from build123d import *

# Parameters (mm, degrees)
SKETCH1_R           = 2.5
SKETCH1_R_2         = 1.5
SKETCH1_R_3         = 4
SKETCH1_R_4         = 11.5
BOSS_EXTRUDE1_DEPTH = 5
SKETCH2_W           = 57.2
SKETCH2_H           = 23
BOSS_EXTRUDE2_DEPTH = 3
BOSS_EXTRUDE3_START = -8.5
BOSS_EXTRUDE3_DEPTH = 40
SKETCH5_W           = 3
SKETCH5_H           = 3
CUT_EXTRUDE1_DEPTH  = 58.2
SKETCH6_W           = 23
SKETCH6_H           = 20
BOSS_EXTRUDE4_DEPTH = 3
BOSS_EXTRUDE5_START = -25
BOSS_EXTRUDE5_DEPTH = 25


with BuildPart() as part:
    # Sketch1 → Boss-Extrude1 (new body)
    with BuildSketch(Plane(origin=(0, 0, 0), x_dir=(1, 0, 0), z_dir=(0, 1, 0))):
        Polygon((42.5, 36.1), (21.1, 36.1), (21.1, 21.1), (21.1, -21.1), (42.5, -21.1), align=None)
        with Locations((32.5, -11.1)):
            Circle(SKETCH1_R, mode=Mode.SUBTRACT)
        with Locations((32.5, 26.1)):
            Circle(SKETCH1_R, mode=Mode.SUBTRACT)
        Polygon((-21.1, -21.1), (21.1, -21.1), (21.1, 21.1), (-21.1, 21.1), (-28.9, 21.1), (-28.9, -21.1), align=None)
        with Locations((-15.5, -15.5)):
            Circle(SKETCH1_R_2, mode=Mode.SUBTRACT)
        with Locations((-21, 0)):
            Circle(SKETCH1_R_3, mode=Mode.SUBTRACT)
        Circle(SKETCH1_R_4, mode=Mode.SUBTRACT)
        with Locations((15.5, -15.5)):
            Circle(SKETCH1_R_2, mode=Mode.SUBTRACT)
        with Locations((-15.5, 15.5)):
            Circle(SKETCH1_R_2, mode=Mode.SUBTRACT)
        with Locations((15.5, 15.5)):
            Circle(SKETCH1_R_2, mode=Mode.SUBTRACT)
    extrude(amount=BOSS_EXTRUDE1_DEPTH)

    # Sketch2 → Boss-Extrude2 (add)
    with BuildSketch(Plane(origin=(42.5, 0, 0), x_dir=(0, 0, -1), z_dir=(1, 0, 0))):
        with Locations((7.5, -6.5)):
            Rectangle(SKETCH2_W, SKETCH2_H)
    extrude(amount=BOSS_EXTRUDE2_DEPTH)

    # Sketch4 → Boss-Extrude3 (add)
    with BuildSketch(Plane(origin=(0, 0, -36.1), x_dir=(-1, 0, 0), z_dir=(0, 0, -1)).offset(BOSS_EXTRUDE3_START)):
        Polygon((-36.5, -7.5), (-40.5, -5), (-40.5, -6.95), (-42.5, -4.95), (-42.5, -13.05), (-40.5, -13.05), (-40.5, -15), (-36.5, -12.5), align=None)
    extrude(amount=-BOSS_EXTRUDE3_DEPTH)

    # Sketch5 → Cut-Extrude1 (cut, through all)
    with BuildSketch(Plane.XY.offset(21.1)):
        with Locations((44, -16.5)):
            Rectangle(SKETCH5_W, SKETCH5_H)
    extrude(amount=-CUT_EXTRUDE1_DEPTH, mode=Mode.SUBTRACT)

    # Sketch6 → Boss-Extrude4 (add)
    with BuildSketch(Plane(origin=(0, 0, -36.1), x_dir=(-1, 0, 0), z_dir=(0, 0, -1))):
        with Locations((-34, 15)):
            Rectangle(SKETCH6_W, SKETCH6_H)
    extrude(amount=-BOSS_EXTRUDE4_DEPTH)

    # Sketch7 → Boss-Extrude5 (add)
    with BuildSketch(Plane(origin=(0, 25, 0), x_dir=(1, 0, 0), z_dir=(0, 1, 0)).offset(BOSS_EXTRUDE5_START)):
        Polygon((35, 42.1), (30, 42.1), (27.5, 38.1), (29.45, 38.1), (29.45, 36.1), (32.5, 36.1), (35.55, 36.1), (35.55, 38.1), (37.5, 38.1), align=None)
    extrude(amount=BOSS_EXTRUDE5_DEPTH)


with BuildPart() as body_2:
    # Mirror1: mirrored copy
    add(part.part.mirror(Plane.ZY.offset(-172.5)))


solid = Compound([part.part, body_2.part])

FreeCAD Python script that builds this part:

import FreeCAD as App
import Part
import Sketcher

V = App.Vector
Q = App.Units.Quantity


def add_polygon(sketch, points):
    """Adds a closed chain of lines whose ends are joined by coincident constraints."""
    first, n = sketch.GeometryCount, len(points)
    for a, b in zip(points, points[1:] + points[:1]):
        sketch.addGeometry(Part.LineSegment(App.Vector(*a, 0), App.Vector(*b, 0)), False)
    for i in range(n):
        sketch.addConstraint(Sketcher.Constraint("Coincident", first + i, 2, first + (i + 1) % n, 1))

doc = App.newDocument("Part")
body = doc.addObject("PartDesign::Body", "Body")

# Sketch on XZ plane
sketch1 = body.newObject("Sketcher::SketchObject", "Sketch")
sketch1.AttachmentSupport = (doc.getObject("XZ_Plane"), [""])
sketch1.MapMode = "FlatFace"
add_polygon(sketch1, [(42.5, -36.1), (21.1, -36.1), (21.1, -21.1), (-28.9, -21.1), (-28.9, 21.1), (42.5, 21.1)])  # lines 0-5
sketch1.addGeometry(Part.Circle(V(-15.5, 15.5, 0), V(0, 0, 1), 1.5), False)  # 6
sketch1.addGeometry(Part.Circle(V(-21, 0, 0), V(0, 0, 1), 4), False)  # 7
sketch1.addGeometry(Part.Circle(V(0, 0, 0), V(0, 0, 1), 11.5), False)  # 8
sketch1.addGeometry(Part.Circle(V(15.5, 15.5, 0), V(0, 0, 1), 1.5), False)  # 9
sketch1.addGeometry(Part.Circle(V(32.5, 11.1, 0), V(0, 0, 1), 2.5), False)  # 10
sketch1.addGeometry(Part.Circle(V(-15.5, -15.5, 0), V(0, 0, 1), 1.5), False)  # 11
sketch1.addGeometry(Part.Circle(V(15.5, -15.5, 0), V(0, 0, 1), 1.5), False)  # 12
sketch1.addGeometry(Part.Circle(V(32.5, -26.1, 0), V(0, 0, 1), 2.5), False)  # 13
sketch1.addConstraint(Sketcher.Constraint("Horizontal", 0))
sketch1.addConstraint(Sketcher.Constraint("Vertical", 1))
sketch1.addConstraint(Sketcher.Constraint("Horizontal", 2))
sketch1.addConstraint(Sketcher.Constraint("Vertical", 3))
sketch1.addConstraint(Sketcher.Constraint("Horizontal", 4))
sketch1.addConstraint(Sketcher.Constraint("Vertical", 5))
sketch1.addConstraint(Sketcher.Constraint("Coincident", 8, 3, -1, 1))
sketch1.addConstraint(Sketcher.Constraint("Equal", 6, 9))
sketch1.addConstraint(Sketcher.Constraint("Equal", 9, 11))
sketch1.addConstraint(Sketcher.Constraint("Equal", 11, 12))
sketch1.addConstraint(Sketcher.Constraint("Equal", 10, 13))
sketch1.addConstraint(Sketcher.Constraint("Symmetric", 9, 3, 11, 3, -1, 1))
sketch1.addConstraint(Sketcher.Constraint("Symmetric", 6, 3, 12, 3, -1, 1))
sketch1.addConstraint(Sketcher.Constraint("Symmetric", 6, 3, 9, 3, -2))
sketch1.addConstraint(Sketcher.Constraint("PointOnObject", 7, 3, -1))
sketch1.addConstraint(Sketcher.Constraint("Vertical", 10, 3, 13, 3))
sketch1.addConstraint(Sketcher.Constraint("Diameter", 6, 3.0))
sketch1.addConstraint(Sketcher.Constraint("Diameter", 7, 8.0))
sketch1.addConstraint(Sketcher.Constraint("Diameter", 8, 23.0))
sketch1.addConstraint(Sketcher.Constraint("Diameter", 10, 5.0))
sketch1.addConstraint(Sketcher.Constraint("DistanceX", 2, 2, 2, 1, 50.0))
sketch1.addConstraint(Sketcher.Constraint("DistanceY", 1, 1, 1, 2, 15.0))
sketch1.addConstraint(Sketcher.Constraint("DistanceX", 0, 2, 0, 1, 21.4))
sketch1.addConstraint(Sketcher.Constraint("DistanceY", 3, 1, 3, 2, 42.2))
sketch1.addConstraint(Sketcher.Constraint("DistanceX", 7, 3, -1, 1, 21.0))
sketch1.addConstraint(Sketcher.Constraint("DistanceX", 6, 3, 9, 3, 31.0))
sketch1.addConstraint(Sketcher.Constraint("DistanceX", 9, 3, 10, 3, 17.0))
sketch1.addConstraint(Sketcher.Constraint("DistanceY", 11, 3, 6, 3, 31.0))
sketch1.addConstraint(Sketcher.Constraint("DistanceY", 0, 2, 13, 3, 10.0))
sketch1.addConstraint(Sketcher.Constraint("DistanceX", 10, 3, 4, 2, 10.0))
sketch1.addConstraint(Sketcher.Constraint("DistanceY", 10, 3, 4, 2, 10.0))
sketch1.addConstraint(Sketcher.Constraint("DistanceY", -1, 1, 10, 3, 11.1))
pad1 = body.newObject("PartDesign::Pad", "Pad")
pad1.Profile = sketch1
pad1.Length = 5
pad1.Reversed = True

# Sketch on YZ plane
sketch2 = body.newObject("Sketcher::SketchObject", "Sketch001")
sketch2.AttachmentSupport = (doc.getObject("YZ_Plane"), [""])
sketch2.MapMode = "FlatFace"
sketch2.AttachmentOffset = App.Placement(V(0, 0, 42.5), App.Rotation())
add_polygon(sketch2, [(5, 21), (-18, 21), (-18, -36), (5, -36)])  # lines 0-3
sketch2.addConstraint(Sketcher.Constraint("Horizontal", 0))
sketch2.addConstraint(Sketcher.Constraint("Vertical", 1))
sketch2.addConstraint(Sketcher.Constraint("Horizontal", 2))
sketch2.addConstraint(Sketcher.Constraint("Vertical", 3))
sketch2.addConstraint(Sketcher.Constraint("DistanceX", 0, 2, 0, 1, 23.0))
sketch2.addConstraint(Sketcher.Constraint("DistanceY", 1, 2, 1, 1, 57.2))
sketch2.addConstraint(Sketcher.Constraint("DistanceX", 0, 2, -1, 1, 18.0))
sketch2.addConstraint(Sketcher.Constraint("DistanceY", -1, 1, 0, 2, 21.1))
pad2 = body.newObject("PartDesign::Pad", "Pad001")
pad2.Profile = sketch2
pad2.Length = 3

# Sketch on XY plane
sketch3 = body.newObject("Sketcher::SketchObject", "Sketch002")
sketch3.AttachmentSupport = (doc.getObject("XY_Plane"), [""])
sketch3.MapMode = "FlatFace"
sketch3.AttachmentOffset = App.Placement(V(0, 0, -27.6), App.Rotation())
add_polygon(sketch3, [(36.5, -7.5), (40.5, -5), (40.5, -7), (42.5, -5), (42.5, -13.1), (40.5, -13.1), (40.5, -15), (36.5, -12.5)])  # lines 0-7
sketch3.addConstraint(Sketcher.Constraint("Vertical", 1))
sketch3.addConstraint(Sketcher.Constraint("Vertical", 3))
sketch3.addConstraint(Sketcher.Constraint("Horizontal", 4))
sketch3.addConstraint(Sketcher.Constraint("Vertical", 5))
sketch3.addConstraint(Sketcher.Constraint("Vertical", 7))
sketch3.addConstraint(Sketcher.Constraint("Vertical", 1, 2, 4, 2))
sketch3.addConstraint(Sketcher.Constraint("Equal", 1, 5))
sketch3.addConstraint(Sketcher.Constraint("Equal", 0, 6))
sketch3.addConstraint(Sketcher.Constraint("DistanceX", 4, 2, 4, 1, 2.0))
sketch3.addConstraint(Sketcher.Constraint("DistanceY", 7, 1, 7, 2, 5.0))
sketch3.addConstraint(Sketcher.Constraint("Angle", 2, Q("45 deg")))
sketch3.addConstraint(Sketcher.Constraint("DistanceY", 3, 2, 3, 1, 8.1))
sketch3.addConstraint(Sketcher.Constraint("DistanceY", 0, 2, -1, 1, 5.0))
sketch3.addConstraint(Sketcher.Constraint("DistanceY", 5, 2, -1, 1, 15.0))
sketch3.addConstraint(Sketcher.Constraint("DistanceX", 6, 2, 4, 2, 4.0))
sketch3.addConstraint(Sketcher.Constraint("DistanceX", -1, 1, 0, 2, 40.5))
pad3 = body.newObject("PartDesign::Pad", "Pad002")
pad3.Profile = sketch3
pad3.Length = 40

# Sketch on XY plane
sketch4 = body.newObject("Sketcher::SketchObject", "Sketch003")
sketch4.AttachmentSupport = (doc.getObject("XY_Plane"), [""])
sketch4.MapMode = "FlatFace"
sketch4.AttachmentOffset = App.Placement(V(0, 0, 21.1), App.Rotation())
add_polygon(sketch4, [(42.5, -15), (42.5, -18), (45.5, -18), (45.5, -15)])  # lines 0-3
sketch4.addConstraint(Sketcher.Constraint("Vertical", 0))
sketch4.addConstraint(Sketcher.Constraint("Horizontal", 1))
sketch4.addConstraint(Sketcher.Constraint("Vertical", 2))
sketch4.addConstraint(Sketcher.Constraint("Horizontal", 3))
sketch4.addConstraint(Sketcher.Constraint("Equal", 3, 0))
sketch4.addConstraint(Sketcher.Constraint("DistanceX", 1, 1, 1, 2, 3.0))
sketch4.addConstraint(Sketcher.Constraint("DistanceY", 0, 2, -1, 1, 18.0))
sketch4.addConstraint(Sketcher.Constraint("DistanceX", -1, 1, 0, 2, 42.5))
pocket1 = body.newObject("PartDesign::Pocket", "Pocket")
pocket1.Profile = sketch4
pocket1.Type = "ThroughAll"

# Sketch on XY plane
sketch5 = body.newObject("Sketcher::SketchObject", "Sketch004")
sketch5.AttachmentSupport = (doc.getObject("XY_Plane"), [""])
sketch5.MapMode = "FlatFace"
sketch5.AttachmentOffset = App.Placement(V(0, 0, -36.1), App.Rotation())
add_polygon(sketch5, [(46, 25), (46, 5), (22, 5), (22, 25)])  # lines 0-3
sketch5.addConstraint(Sketcher.Constraint("Vertical", 0))
sketch5.addConstraint(Sketcher.Constraint("Horizontal", 1))
sketch5.addConstraint(Sketcher.Constraint("Vertical", 2))
sketch5.addConstraint(Sketcher.Constraint("Horizontal", 3))
sketch5.addConstraint(Sketcher.Constraint("DistanceX", 1, 2, 1, 1, 23.0))
sketch5.addConstraint(Sketcher.Constraint("DistanceY", 0, 2, 0, 1, 20.0))
sketch5.addConstraint(Sketcher.Constraint("DistanceY", -1, 1, 0, 2, 5.0))
sketch5.addConstraint(Sketcher.Constraint("DistanceX", -1, 1, 0, 2, 45.5))
pad4 = body.newObject("PartDesign::Pad", "Pad003")
pad4.Profile = sketch5
pad4.Length = 3

# Sketch on XZ plane
sketch6 = body.newObject("Sketcher::SketchObject", "Sketch005")
sketch6.AttachmentSupport = (doc.getObject("XZ_Plane"), [""])
sketch6.MapMode = "FlatFace"
add_polygon(sketch6, [(35, -42.1), (30, -42.1), (27.5, -38.1), (29.4, -38.1), (29.4, -36.1), (35.5, -36.1), (35.5, -38.1), (37.5, -38.1)])  # lines 0-7
sketch6.addConstraint(Sketcher.Constraint("Horizontal", 0))
sketch6.addConstraint(Sketcher.Constraint("Horizontal", 2))
sketch6.addConstraint(Sketcher.Constraint("Vertical", 3))
sketch6.addConstraint(Sketcher.Constraint("Horizontal", 4))
sketch6.addConstraint(Sketcher.Constraint("Vertical", 5))
sketch6.addConstraint(Sketcher.Constraint("Horizontal", 6))
sketch6.addConstraint(Sketcher.Constraint("Horizontal", 2, 2, 5, 2))
sketch6.addConstraint(Sketcher.Constraint("Equal", 2, 6))
sketch6.addConstraint(Sketcher.Constraint("Equal", 1, 7))
sketch6.addConstraint(Sketcher.Constraint("DistanceX", 0, 2, 0, 1, 5.0))
sketch6.addConstraint(Sketcher.Constraint("DistanceY", 3, 1, 3, 2, 2.0))
sketch6.addConstraint(Sketcher.Constraint("DistanceX", 4, 1, 4, 2, 6.1))
sketch6.addConstraint(Sketcher.Constraint("DistanceX", -1, 1, 0, 2, 30.0))
sketch6.addConstraint(Sketcher.Constraint("DistanceY", 0, 2, 1, 2, 4.0))
sketch6.addConstraint(Sketcher.Constraint("DistanceX", 2, 1, 2, 2, 1.95))
sketch6.addConstraint(Sketcher.Constraint("DistanceY", 0, 2, -1, 1, 42.1))
pad5 = body.newObject("PartDesign::Pad", "Pad004")
pad5.Profile = sketch6
pad5.Length = 25
pad5.Reversed = True
body2 = doc.addObject("PartDesign::Body", "Body001")
doc.recompute()

mirroring = doc.addObject("Part::Mirroring", "Mirroring")
mirroring.Source = body
mirroring.Base = V(172.5, 0, 0)
mirroring.Normal = V(-1, 0, 0)
body2.BaseFeature = mirroring
doc.recompute()
mirroring.Visibility = False

doc.recompute()
